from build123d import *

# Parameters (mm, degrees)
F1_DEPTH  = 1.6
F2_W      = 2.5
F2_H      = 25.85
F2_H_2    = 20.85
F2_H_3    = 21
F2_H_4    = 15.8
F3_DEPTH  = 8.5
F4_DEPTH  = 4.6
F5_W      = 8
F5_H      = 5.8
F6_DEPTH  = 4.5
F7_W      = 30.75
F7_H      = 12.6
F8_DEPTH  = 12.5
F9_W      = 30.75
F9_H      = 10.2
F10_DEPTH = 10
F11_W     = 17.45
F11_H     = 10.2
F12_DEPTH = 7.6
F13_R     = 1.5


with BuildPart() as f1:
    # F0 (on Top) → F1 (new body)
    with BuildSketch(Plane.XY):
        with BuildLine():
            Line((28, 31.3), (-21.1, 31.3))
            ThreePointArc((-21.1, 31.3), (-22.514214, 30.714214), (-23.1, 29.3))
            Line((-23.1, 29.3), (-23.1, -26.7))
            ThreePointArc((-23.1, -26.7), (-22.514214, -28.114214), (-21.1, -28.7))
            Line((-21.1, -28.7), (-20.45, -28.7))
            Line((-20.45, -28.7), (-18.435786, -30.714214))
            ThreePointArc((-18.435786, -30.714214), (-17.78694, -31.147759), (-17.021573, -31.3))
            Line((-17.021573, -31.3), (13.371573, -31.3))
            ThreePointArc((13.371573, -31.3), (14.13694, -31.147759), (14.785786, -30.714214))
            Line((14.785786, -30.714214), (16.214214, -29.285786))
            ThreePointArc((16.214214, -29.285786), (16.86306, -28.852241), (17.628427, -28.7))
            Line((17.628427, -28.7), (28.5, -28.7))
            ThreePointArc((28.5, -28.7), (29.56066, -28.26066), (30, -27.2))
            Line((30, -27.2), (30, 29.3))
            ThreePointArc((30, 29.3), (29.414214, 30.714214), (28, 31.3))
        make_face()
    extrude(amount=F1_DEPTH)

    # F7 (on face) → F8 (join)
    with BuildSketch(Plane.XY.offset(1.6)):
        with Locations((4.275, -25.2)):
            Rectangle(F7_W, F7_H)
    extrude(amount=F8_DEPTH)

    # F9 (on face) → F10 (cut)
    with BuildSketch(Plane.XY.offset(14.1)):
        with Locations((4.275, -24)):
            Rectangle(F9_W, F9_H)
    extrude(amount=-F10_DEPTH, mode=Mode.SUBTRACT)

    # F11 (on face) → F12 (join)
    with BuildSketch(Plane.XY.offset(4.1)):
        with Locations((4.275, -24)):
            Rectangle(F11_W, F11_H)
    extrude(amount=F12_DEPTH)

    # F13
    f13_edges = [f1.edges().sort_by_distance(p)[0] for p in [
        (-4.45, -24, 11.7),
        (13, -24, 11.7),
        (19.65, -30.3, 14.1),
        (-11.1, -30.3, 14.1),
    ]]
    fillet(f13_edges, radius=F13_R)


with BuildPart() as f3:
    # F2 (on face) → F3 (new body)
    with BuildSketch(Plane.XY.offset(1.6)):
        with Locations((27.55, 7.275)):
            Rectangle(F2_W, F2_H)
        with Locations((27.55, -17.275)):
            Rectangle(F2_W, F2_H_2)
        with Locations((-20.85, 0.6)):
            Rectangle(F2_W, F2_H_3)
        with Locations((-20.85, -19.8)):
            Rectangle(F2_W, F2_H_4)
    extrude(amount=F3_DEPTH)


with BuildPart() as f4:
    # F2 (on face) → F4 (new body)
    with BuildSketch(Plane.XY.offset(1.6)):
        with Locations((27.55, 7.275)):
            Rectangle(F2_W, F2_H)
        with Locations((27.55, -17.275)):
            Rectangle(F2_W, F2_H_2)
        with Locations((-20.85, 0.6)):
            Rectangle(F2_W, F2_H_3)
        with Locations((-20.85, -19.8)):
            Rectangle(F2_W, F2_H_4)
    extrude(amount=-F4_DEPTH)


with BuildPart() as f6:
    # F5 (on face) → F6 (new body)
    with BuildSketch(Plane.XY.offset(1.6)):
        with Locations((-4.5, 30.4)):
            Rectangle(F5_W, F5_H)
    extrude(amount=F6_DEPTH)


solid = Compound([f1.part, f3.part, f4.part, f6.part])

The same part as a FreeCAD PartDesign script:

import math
import FreeCAD as App
import Part
import Sketcher
Q = App.Units.Quantity


def edges_at(feature, points):
    """Names of the edges that pass closest to the given points."""
    edges = feature.Shape.Edges
    near = lambda p: min(range(len(edges)), key=lambda i: edges[i].distToShape(Part.Vertex(*p))[0])
    return sorted({f"Edge{near(p) + 1}" for p in points})

doc = App.newDocument("Part")
body = doc.addObject("PartDesign::Body", "Body")

# Sketch on XY plane
sketch1 = body.newObject("Sketcher::SketchObject", "Sketch")
sketch1.AttachmentSupport = (doc.getObject("XY_Plane"), [""])
sketch1.MapMode = "FlatFace"
sketch1.addGeometry([
    Part.LineSegment(App.Vector(28, 31.3, 0), App.Vector(-21.1, 31.3, 0)),  # 0
    Part.ArcOfCircle(Part.Circle(App.Vector(-21.100001, 29.300001, 0), App.Vector(0, 0, 1), 1.999999), math.radians(89.999957), math.radians(180.000043)),  # 1
    Part.LineSegment(App.Vector(-23.1, 29.3, 0), App.Vector(-23.1, -26.7, 0)),  # 2
    Part.ArcOfCircle(Part.Circle(App.Vector(-21.100001, -26.700001, 0), App.Vector(0, 0, 1), 1.999999), math.radians(179.999957), math.radians(270.000043)),  # 3
    Part.LineSegment(App.Vector(-21.1, -28.7, 0), App.Vector(-20.45, -28.7, 0)),  # 4
    Part.LineSegment(App.Vector(-20.45, -28.7, 0), App.Vector(-18.435786, -30.714214, 0)),  # 5
    Part.ArcOfCircle(Part.Circle(App.Vector(-17.021573, -29.3, 0), App.Vector(0, 0, 1), 2), math.radians(-134.999988), math.radians(-89.999998)),  # 6
    Part.LineSegment(App.Vector(-17.021573, -31.3, 0), App.Vector(13.371573, -31.3, 0)),  # 7
    Part.ArcOfCircle(Part.Circle(App.Vector(13.371573, -29.3, 0), App.Vector(0, 0, 1), 2), math.radians(-90.000002), math.radians(-45.000012)),  # 8
    Part.LineSegment(App.Vector(14.785786, -30.714214, 0), App.Vector(16.214214, -29.285786, 0)),  # 9
    Part.ArcOfCircle(Part.Circle(App.Vector(17.628427, -30.7, 0), App.Vector(0, 0, 1), 2), math.radians(89.999998), math.radians(134.999988)),  # 10
    Part.LineSegment(App.Vector(17.628427, -28.7, 0), App.Vector(28.5, -28.7, 0)),  # 11
    Part.ArcOfCircle(Part.Circle(App.Vector(28.499999, -27.199999, 0), App.Vector(0, 0, 1), 1.500001), math.radians(-89.999978), math.radians(-0.000022)),  # 12
    Part.LineSegment(App.Vector(30, -27.2, 0), App.Vector(30, 29.3, 0)),  # 13
    Part.ArcOfCircle(Part.Circle(App.Vector(28.000001, 29.300001, 0), App.Vector(0, 0, 1), 1.999999), math.radians(-0.000043), math.radians(90.000043)),  # 14
], False)
sketch1.addConstraint([
    Sketcher.Constraint("Tangent", 0, 2, 1, 1),
    Sketcher.Constraint("Tangent", 1, 2, 2, 1),
    Sketcher.Constraint("Tangent", 2, 2, 3, 1),
    Sketcher.Constraint("Tangent", 3, 2, 4, 1),
    Sketcher.Constraint("Coincident", 4, 2, 5, 1),
    Sketcher.Constraint("Tangent", 5, 2, 6, 1),
    Sketcher.Constraint("Tangent", 6, 2, 7, 1),
    Sketcher.Constraint("Tangent", 7, 2, 8, 1),
    Sketcher.Constraint("Tangent", 8, 2, 9, 1),
    Sketcher.Constraint("Tangent", 9, 2, 10, 2),
    Sketcher.Constraint("Tangent", 10, 1, 11, 1),
    Sketcher.Constraint("Tangent", 11, 2, 12, 1),
    Sketcher.Constraint("Tangent", 12, 2, 13, 1),
    Sketcher.Constraint("Tangent", 13, 2, 14, 1),
    Sketcher.Constraint("Tangent", 14, 2, 0, 1),
    Sketcher.Constraint("Horizontal", 0),
    Sketcher.Constraint("Vertical", 2),
    Sketcher.Constraint("Horizontal", 4),
    Sketcher.Constraint("Horizontal", 7),
    Sketcher.Constraint("Horizontal", 11),
    Sketcher.Constraint("Vertical", 13),
    Sketcher.Constraint("Equal", 1, 3),
    Sketcher.Constraint("Equal", 3, 6),
    Sketcher.Constraint("Equal", 6, 8),
    Sketcher.Constraint("Equal", 8, 10),
    Sketcher.Constraint("Equal", 10, 14),
    Sketcher.Constraint("Perpendicular", 5, 9),
    Sketcher.Constraint("Horizontal", 5, 2, 8, 2),
    Sketcher.Constraint("Horizontal", 4, 2, 10, 1),
    Sketcher.Constraint("Radius", 1, Q("1.999999 mm")),
    Sketcher.Constraint("Radius", 12, Q("1.500001 mm")),
    Sketcher.Constraint("DistanceY", 2, 2, 2, 1, Q("56 mm")),
    Sketcher.Constraint("DistanceX", 0, 2, 0, 1, Q("49.1 mm")),
    Sketcher.Constraint("DistanceX", -1, 1, 14, 3, Q("28.000001 mm")),
    Sketcher.Constraint("DistanceX", 4, 1, 4, 2, Q("0.65 mm")),
    Sketcher.Constraint("DistanceY", -1, 1, 1, 3, Q("29.300001 mm")),
    Sketcher.Constraint("DistanceY", 6, 3, -1, 1, Q("29.3 mm")),
    Sketcher.Constraint("DistanceX", 6, 3, 10, 3, Q("34.65 mm")),
])
pad1 = body.newObject("PartDesign::Pad", "Pad")
pad1.Profile = sketch1
pad1.Length = 1.6

# Sketch on XY plane
sketch2 = body.newObject("Sketcher::SketchObject", "Sketch001")
sketch2.AttachmentSupport = (doc.getObject("XY_Plane"), [""])
sketch2.MapMode = "FlatFace"
sketch2.AttachmentOffset = App.Placement(App.Vector(0, 0, 1.6), App.Rotation())
sketch2.addGeometry([
    Part.LineSegment(App.Vector(-11.1, -18.9, 0), App.Vector(-11.1, -31.5, 0)),
    Part.LineSegment(App.Vector(-11.1, -31.5, 0), App.Vector(19.65, -31.5, 0)),
    Part.LineSegment(App.Vector(19.65, -31.5, 0), App.Vector(19.65, -18.9, 0)),
    Part.LineSegment(App.Vector(19.65, -18.9, 0), App.Vector(-11.1, -18.9, 0)),
], False)
sketch2.addConstraint([
    Sketcher.Constraint("Coincident", 0, 2, 1, 1),
    Sketcher.Constraint("Coincident", 1, 2, 2, 1),
    Sketcher.Constraint("Coincident", 2, 2, 3, 1),
    Sketcher.Constraint("Coincident", 3, 2, 0, 1),
    Sketcher.Constraint("Vertical", 0),
    Sketcher.Constraint("Horizontal", 1),
    Sketcher.Constraint("Vertical", 2),
    Sketcher.Constraint("Horizontal", 3),
    Sketcher.Constraint("DistanceY", 0, 2, 0, 1, Q("12.6 mm")),
    Sketcher.Constraint("DistanceX", 1, 1, 1, 2, Q("30.75 mm")),
    Sketcher.Constraint("DistanceX", 0, 2, -1, 1, Q("11.1 mm")),
    Sketcher.Constraint("DistanceY", 0, 2, -1, 1, Q("31.5 mm")),
])
pad2 = body.newObject("PartDesign::Pad", "Pad001")
pad2.Profile = sketch2
pad2.Length = 12.5

# Sketch on XY plane
sketch3 = body.newObject("Sketcher::SketchObject", "Sketch002")
sketch3.AttachmentSupport = (doc.getObject("XY_Plane"), [""])
sketch3.MapMode = "FlatFace"
sketch3.AttachmentOffset = App.Placement(App.Vector(0, 0, 14.1), App.Rotation())
sketch3.addGeometry([
    Part.LineSegment(App.Vector(-11.1, -18.9, 0), App.Vector(-11.1, -29.1, 0)),
    Part.LineSegment(App.Vector(-11.1, -29.1, 0), App.Vector(19.65, -29.1, 0)),
    Part.LineSegment(App.Vector(19.65, -29.1, 0), App.Vector(19.65, -18.9, 0)),
    Part.LineSegment(App.Vector(19.65, -18.9, 0), App.Vector(-11.1, -18.9, 0)),
], False)
sketch3.addConstraint([
    Sketcher.Constraint("Coincident", 0, 2, 1, 1),
    Sketcher.Constraint("Coincident", 1, 2, 2, 1),
    Sketcher.Constraint("Coincident", 2, 2, 3, 1),
    Sketcher.Constraint("Coincident", 3, 2, 0, 1),
    Sketcher.Constraint("Vertical", 0),
    Sketcher.Constraint("Horizontal", 1),
    Sketcher.Constraint("Vertical", 2),
    Sketcher.Constraint("Horizontal", 3),
    Sketcher.Constraint("DistanceY", 0, 2, 0, 1, Q("10.2 mm")),
    Sketcher.Constraint("DistanceX", 1, 1, 1, 2, Q("30.75 mm")),
    Sketcher.Constraint("DistanceX", 0, 2, -1, 1, Q("11.1 mm")),
    Sketcher.Constraint("DistanceY", 0, 2, -1, 1, Q("29.1 mm")),
])
pocket1 = body.newObject("PartDesign::Pocket", "Pocket")
pocket1.Profile = sketch3
pocket1.Length = 10

# Sketch on XY plane
sketch4 = body.newObject("Sketcher::SketchObject", "Sketch003")
sketch4.AttachmentSupport = (doc.getObject("XY_Plane"), [""])
sketch4.MapMode = "FlatFace"
sketch4.AttachmentOffset = App.Placement(App.Vector(0, 0, 4.1), App.Rotation())
sketch4.addGeometry([
    Part.LineSegment(App.Vector(-4.45, -18.9, 0), App.Vector(-4.45, -29.1, 0)),
    Part.LineSegment(App.Vector(-4.45, -29.1, 0), App.Vector(13, -29.1, 0)),
    Part.LineSegment(App.Vector(13, -29.1, 0), App.Vector(13, -18.9, 0)),
    Part.LineSegment(App.Vector(13, -18.9, 0), App.Vector(-4.45, -18.9, 0)),
], False)
sketch4.addConstraint([
    Sketcher.Constraint("Coincident", 0, 2, 1, 1),
    Sketcher.Constraint("Coincident", 1, 2, 2, 1),
    Sketcher.Constraint("Coincident", 2, 2, 3, 1),
    Sketcher.Constraint("Coincident", 3, 2, 0, 1),
    Sketcher.Constraint("Vertical", 0),
    Sketcher.Constraint("Horizontal", 1),
    Sketcher.Constraint("Vertical", 2),
    Sketcher.Constraint("Horizontal", 3),
    Sketcher.Constraint("DistanceY", 0, 2, 0, 1, Q("10.2 mm")),
    Sketcher.Constraint("DistanceX", -1, 1, 1, 2, Q("13 mm")),
    Sketcher.Constraint("DistanceX", 1, 1, 1, 2, Q("17.45 mm")),
    Sketcher.Constraint("DistanceY", 0, 2, -1, 1, Q("29.1 mm")),
])
pad3 = body.newObject("PartDesign::Pad", "Pad002")
pad3.Profile = sketch4
pad3.Length = 7.6
doc.recompute()

fillet = body.newObject("PartDesign::Fillet", "Fillet")
fillet.Base = (pad3, edges_at(pad3, [
    (-4.45, -24, 11.7),
    (13, -24, 11.7),
    (19.65, -30.3, 14.1),
    (-11.1, -30.3, 14.1),
]))
fillet.Radius = 1.5
body2 = doc.addObject("PartDesign::Body", "Body001")
body2.AllowCompound = True

# Sketch on XY plane
sketch5 = body2.newObject("Sketcher::SketchObject", "Sketch004")
sketch5.AttachmentSupport = (doc.getObject("XY_Plane001"), [""])
sketch5.MapMode = "FlatFace"
sketch5.AttachmentOffset = App.Placement(App.Vector(0, 0, 1.6), App.Rotation())
sketch5.addGeometry([
    Part.LineSegment(App.Vector(26.3, 20.2, 0), App.Vector(26.3, -5.65, 0)),  # 0
    Part.LineSegment(App.Vector(26.3, -5.65, 0), App.Vector(28.8, -5.65, 0)),  # 1
    Part.LineSegment(App.Vector(28.8, -5.65, 0), App.Vector(28.8, 20.2, 0)),  # 2
    Part.LineSegment(App.Vector(28.8, 20.2, 0), App.Vector(26.3, 20.2, 0)),  # 3
    Part.LineSegment(App.Vector(26.3, -6.85, 0), App.Vector(26.3, -27.7, 0)),  # 4
    Part.LineSegment(App.Vector(26.3, -27.7, 0), App.Vector(28.8, -27.7, 0)),  # 5
    Part.LineSegment(App.Vector(28.8, -27.7, 0), App.Vector(28.8, -6.85, 0)),  # 6
    Part.LineSegment(App.Vector(28.8, -6.85, 0), App.Vector(26.3, -6.85, 0)),  # 7
    Part.LineSegment(App.Vector(-22.1, 11.1, 0), App.Vector(-22.1, -9.9, 0)),  # 8
    Part.LineSegment(App.Vector(-22.1, -9.9, 0), App.Vector(-19.6, -9.9, 0)),  # 9
    Part.LineSegment(App.Vector(-19.6, -9.9, 0), App.Vector(-19.6, 11.1, 0)),  # 10
    Part.LineSegment(App.Vector(-19.6, 11.1, 0), App.Vector(-22.1, 11.1, 0)),  # 11
    Part.LineSegment(App.Vector(-22.1, -11.9, 0), App.Vector(-22.1, -27.7, 0)),  # 12
    Part.LineSegment(App.Vector(-22.1, -27.7, 0), App.Vector(-19.6, -27.7, 0)),  # 13
    Part.LineSegment(App.Vector(-19.6, -27.7, 0), App.Vector(-19.6, -11.9, 0)),  # 14
    Part.LineSegment(App.Vector(-19.6, -11.9, 0), App.Vector(-22.1, -11.9, 0)),  # 15
], False)
sketch5.addConstraint([
    Sketcher.Constraint("Coincident", 0, 2, 1, 1),
    Sketcher.Constraint("Coincident", 1, 2, 2, 1),
    Sketcher.Constraint("Coincident", 2, 2, 3, 1),
    Sketcher.Constraint("Coincident", 3, 2, 0, 1),
    Sketcher.Constraint("Coincident", 4, 2, 5, 1),
    Sketcher.Constraint("Coincident", 5, 2, 6, 1),
    Sketcher.Constraint("Coincident", 6, 2, 7, 1),
    Sketcher.Constraint("Coincident", 7, 2, 4, 1),
    Sketcher.Constraint("Coincident", 8, 2, 9, 1),
    Sketcher.Constraint("Coincident", 9, 2, 10, 1),
    Sketcher.Constraint("Coincident", 10, 2, 11, 1),
    Sketcher.Constraint("Coincident", 11, 2, 8, 1),
    Sketcher.Constraint("Coincident", 12, 2, 13, 1),
    Sketcher.Constraint("Coincident", 13, 2, 14, 1),
    Sketcher.Constraint("Coincident", 14, 2, 15, 1),
    Sketcher.Constraint("Coincident", 15, 2, 12, 1),
    Sketcher.Constraint("Vertical", 0),
    Sketcher.Constraint("Horizontal", 1),
    Sketcher.Constraint("Vertical", 2),
    Sketcher.Constraint("Horizontal", 3),
    Sketcher.Constraint("Vertical", 4),
    Sketcher.Constraint("Horizontal", 5),
    Sketcher.Constraint("Vertical", 6),
    Sketcher.Constraint("Horizontal", 7),
    Sketcher.Constraint("Vertical", 8),
    Sketcher.Constraint("Horizontal", 9),
    Sketcher.Constraint("Vertical", 10),
    Sketcher.Constraint("Horizontal", 11),
    Sketcher.Constraint("Vertical", 12),
    Sketcher.Constraint("Horizontal", 13),
    Sketcher.Constraint("Vertical", 14),
    Sketcher.Constraint("Horizontal", 15),
    Sketcher.Constraint("Horizontal", 5, 2, 12, 2),
    Sketcher.Constraint("Vertical", 3, 2, 4, 2),
    Sketcher.Constraint("Vertical", 2, 2, 5, 2),
    Sketcher.Constraint("Vertical", 11, 2, 12, 2),
    Sketcher.Constraint("Vertical", 10, 2, 13, 2),
    Sketcher.Constraint("Equal", 7, 9),
    Sketcher.Constraint("DistanceY", 8, 2, 8, 1, Q("21 mm")),
    Sketcher.Constraint("DistanceX", 1, 1, 1, 2, Q("2.5 mm")),
    Sketcher.Constraint("DistanceY", 12, 2, 12, 1, Q("15.8 mm")),
    Sketcher.Constraint("DistanceY", 14, 2, 9, 2, Q("2 mm")),
    Sketcher.Constraint("DistanceY", 0, 2, 0, 1, Q("25.85 mm")),
    Sketcher.Constraint("DistanceY", 4, 2, 4, 1, Q("20.85 mm")),
    Sketcher.Constraint("DistanceX", -1, 1, 0, 2, Q("26.3 mm")),
    Sketcher.Constraint("DistanceY", -1, 1, 2, 2, Q("20.2 mm")),
    Sketcher.Constraint("DistanceY", 4, 2, -1, 1, Q("27.7 mm")),
    Sketcher.Constraint("DistanceX", 8, 2, -1, 1, Q("22.1 mm")),
])
pad4 = body2.newObject("PartDesign::Pad", "Pad003")
pad4.Profile = sketch5
pad4.Length = 8.5
body3 = doc.addObject("PartDesign::Body", "Body002")
body3.AllowCompound = True

# Sketch on XY plane
sketch6 = body3.newObject("Sketcher::SketchObject", "Sketch005")
sketch6.AttachmentSupport = (doc.getObject("XY_Plane002"), [""])
sketch6.MapMode = "FlatFace"
sketch6.AttachmentOffset = App.Placement(App.Vector(0, 0, 1.6), App.Rotation())
sketch6.addGeometry([
    Part.LineSegment(App.Vector(26.3, 20.2, 0), App.Vector(26.3, -5.65, 0)),  # 0
    Part.LineSegment(App.Vector(26.3, -5.65, 0), App.Vector(28.8, -5.65, 0)),  # 1
    Part.LineSegment(App.Vector(28.8, -5.65, 0), App.Vector(28.8, 20.2, 0)),  # 2
    Part.LineSegment(App.Vector(28.8, 20.2, 0), App.Vector(26.3, 20.2, 0)),  # 3
    Part.LineSegment(App.Vector(26.3, -6.85, 0), App.Vector(26.3, -27.7, 0)),  # 4
    Part.LineSegment(App.Vector(26.3, -27.7, 0), App.Vector(28.8, -27.7, 0)),  # 5
    Part.LineSegment(App.Vector(28.8, -27.7, 0), App.Vector(28.8, -6.85, 0)),  # 6
    Part.LineSegment(App.Vector(28.8, -6.85, 0), App.Vector(26.3, -6.85, 0)),  # 7
    Part.LineSegment(App.Vector(-22.1, 11.1, 0), App.Vector(-22.1, -9.9, 0)),  # 8
    Part.LineSegment(App.Vector(-22.1, -9.9, 0), App.Vector(-19.6, -9.9, 0)),  # 9
    Part.LineSegment(App.Vector(-19.6, -9.9, 0), App.Vector(-19.6, 11.1, 0)),  # 10
    Part.LineSegment(App.Vector(-19.6, 11.1, 0), App.Vector(-22.1, 11.1, 0)),  # 11
    Part.LineSegment(App.Vector(-22.1, -11.9, 0), App.Vector(-22.1, -27.7, 0)),  # 12
    Part.LineSegment(App.Vector(-22.1, -27.7, 0), App.Vector(-19.6, -27.7, 0)),  # 13
    Part.LineSegment(App.Vector(-19.6, -27.7, 0), App.Vector(-19.6, -11.9, 0)),  # 14
    Part.LineSegment(App.Vector(-19.6, -11.9, 0), App.Vector(-22.1, -11.9, 0)),  # 15
], False)
sketch6.addConstraint([
    Sketcher.Constraint("Coincident", 0, 2, 1, 1),
    Sketcher.Constraint("Coincident", 1, 2, 2, 1),
    Sketcher.Constraint("Coincident", 2, 2, 3, 1),
    Sketcher.Constraint("Coincident", 3, 2, 0, 1),
    Sketcher.Constraint("Coincident", 4, 2, 5, 1),
    Sketcher.Constraint("Coincident", 5, 2, 6, 1),
    Sketcher.Constraint("Coincident", 6, 2, 7, 1),
    Sketcher.Constraint("Coincident", 7, 2, 4, 1),
    Sketcher.Constraint("Coincident", 8, 2, 9, 1),
    Sketcher.Constraint("Coincident", 9, 2, 10, 1),
    Sketcher.Constraint("Coincident", 10, 2, 11, 1),
    Sketcher.Constraint("Coincident", 11, 2, 8, 1),
    Sketcher.Constraint("Coincident", 12, 2, 13, 1),
    Sketcher.Constraint("Coincident", 13, 2, 14, 1),
    Sketcher.Constraint("Coincident", 14, 2, 15, 1),
    Sketcher.Constraint("Coincident", 15, 2, 12, 1),
    Sketcher.Constraint("Vertical", 0),
    Sketcher.Constraint("Horizontal", 1),
    Sketcher.Constraint("Vertical", 2),
    Sketcher.Constraint("Horizontal", 3),
    Sketcher.Constraint("Vertical", 4),
    Sketcher.Constraint("Horizontal", 5),
    Sketcher.Constraint("Vertical", 6),
    Sketcher.Constraint("Horizontal", 7),
    Sketcher.Constraint("Vertical", 8),
    Sketcher.Constraint("Horizontal", 9),
    Sketcher.Constraint("Vertical", 10),
    Sketcher.Constraint("Horizontal", 11),
    Sketcher.Constraint("Vertical", 12),
    Sketcher.Constraint("Horizontal", 13),
    Sketcher.Constraint("Vertical", 14),
    Sketcher.Constraint("Horizontal", 15),
    Sketcher.Constraint("Horizontal", 5, 2, 12, 2),
    Sketcher.Constraint("Vertical", 3, 2, 4, 2),
    Sketcher.Constraint("Vertical", 2, 2, 5, 2),
    Sketcher.Constraint("Vertical", 11, 2, 12, 2),
    Sketcher.Constraint("Vertical", 10, 2, 13, 2),
    Sketcher.Constraint("Equal", 7, 9),
    Sketcher.Constraint("DistanceY", 8, 2, 8, 1, Q("21 mm")),
    Sketcher.Constraint("DistanceX", 1, 1, 1, 2, Q("2.5 mm")),
    Sketcher.Constraint("DistanceY", 12, 2, 12, 1, Q("15.8 mm")),
    Sketcher.Constraint("DistanceY", 14, 2, 9, 2, Q("2 mm")),
    Sketcher.Constraint("DistanceY", 0, 2, 0, 1, Q("25.85 mm")),
    Sketcher.Constraint("DistanceY", 4, 2, 4, 1, Q("20.85 mm")),
    Sketcher.Constraint("DistanceX", -1, 1, 0, 2, Q("26.3 mm")),
    Sketcher.Constraint("DistanceY", -1, 1, 2, 2, Q("20.2 mm")),
    Sketcher.Constraint("DistanceY", 4, 2, -1, 1, Q("27.7 mm")),
    Sketcher.Constraint("DistanceX", 8, 2, -1, 1, Q("22.1 mm")),
])
pad5 = body3.newObject("PartDesign::Pad", "Pad004")
pad5.Profile = sketch6
pad5.Length = 4.6
pad5.Reversed = True
body4 = doc.addObject("PartDesign::Body", "Body003")

# Sketch on XY plane
sketch7 = body4.newObject("Sketcher::SketchObject", "Sketch006")
sketch7.AttachmentSupport = (doc.getObject("XY_Plane003"), [""])
sketch7.MapMode = "FlatFace"
sketch7.AttachmentOffset = App.Placement(App.Vector(0, 0, 1.6), App.Rotation())
sketch7.addGeometry([
    Part.LineSegment(App.Vector(-8.5, 33.3, 0), App.Vector(-8.5, 27.5, 0)),
    Part.LineSegment(App.Vector(-8.5, 27.5, 0), App.Vector(-0.5, 27.5, 0)),
    Part.LineSegment(App.Vector(-0.5, 27.5, 0), App.Vector(-0.5, 33.3, 0)),
    Part.LineSegment(App.Vector(-0.5, 33.3, 0), App.Vector(-8.5, 33.3, 0)),
], False)
sketch7.addConstraint([
    Sketcher.Constraint("Coincident", 0, 2, 1, 1),
    Sketcher.Constraint("Coincident", 1, 2, 2, 1),
    Sketcher.Constraint("Coincident", 2, 2, 3, 1),
    Sketcher.Constraint("Coincident", 3, 2, 0, 1),
    Sketcher.Constraint("Vertical", 0),
    Sketcher.Constraint("Horizontal", 1),
    Sketcher.Constraint("Vertical", 2),
    Sketcher.Constraint("Horizontal", 3),
    Sketcher.Constraint("DistanceX", 1, 1, 1, 2, Q("8 mm")),
    Sketcher.Constraint("DistanceY", 0, 2, 0, 1, Q("5.8 mm")),
    Sketcher.Constraint("DistanceX", 0, 2, -1, 1, Q("8.5 mm")),
    Sketcher.Constraint("DistanceY", -1, 1, 0, 2, Q("27.5 mm")),
])
pad6 = body4.newObject("PartDesign::Pad", "Pad005")
pad6.Profile = sketch7
pad6.Length = 4.5

doc.recompute()
